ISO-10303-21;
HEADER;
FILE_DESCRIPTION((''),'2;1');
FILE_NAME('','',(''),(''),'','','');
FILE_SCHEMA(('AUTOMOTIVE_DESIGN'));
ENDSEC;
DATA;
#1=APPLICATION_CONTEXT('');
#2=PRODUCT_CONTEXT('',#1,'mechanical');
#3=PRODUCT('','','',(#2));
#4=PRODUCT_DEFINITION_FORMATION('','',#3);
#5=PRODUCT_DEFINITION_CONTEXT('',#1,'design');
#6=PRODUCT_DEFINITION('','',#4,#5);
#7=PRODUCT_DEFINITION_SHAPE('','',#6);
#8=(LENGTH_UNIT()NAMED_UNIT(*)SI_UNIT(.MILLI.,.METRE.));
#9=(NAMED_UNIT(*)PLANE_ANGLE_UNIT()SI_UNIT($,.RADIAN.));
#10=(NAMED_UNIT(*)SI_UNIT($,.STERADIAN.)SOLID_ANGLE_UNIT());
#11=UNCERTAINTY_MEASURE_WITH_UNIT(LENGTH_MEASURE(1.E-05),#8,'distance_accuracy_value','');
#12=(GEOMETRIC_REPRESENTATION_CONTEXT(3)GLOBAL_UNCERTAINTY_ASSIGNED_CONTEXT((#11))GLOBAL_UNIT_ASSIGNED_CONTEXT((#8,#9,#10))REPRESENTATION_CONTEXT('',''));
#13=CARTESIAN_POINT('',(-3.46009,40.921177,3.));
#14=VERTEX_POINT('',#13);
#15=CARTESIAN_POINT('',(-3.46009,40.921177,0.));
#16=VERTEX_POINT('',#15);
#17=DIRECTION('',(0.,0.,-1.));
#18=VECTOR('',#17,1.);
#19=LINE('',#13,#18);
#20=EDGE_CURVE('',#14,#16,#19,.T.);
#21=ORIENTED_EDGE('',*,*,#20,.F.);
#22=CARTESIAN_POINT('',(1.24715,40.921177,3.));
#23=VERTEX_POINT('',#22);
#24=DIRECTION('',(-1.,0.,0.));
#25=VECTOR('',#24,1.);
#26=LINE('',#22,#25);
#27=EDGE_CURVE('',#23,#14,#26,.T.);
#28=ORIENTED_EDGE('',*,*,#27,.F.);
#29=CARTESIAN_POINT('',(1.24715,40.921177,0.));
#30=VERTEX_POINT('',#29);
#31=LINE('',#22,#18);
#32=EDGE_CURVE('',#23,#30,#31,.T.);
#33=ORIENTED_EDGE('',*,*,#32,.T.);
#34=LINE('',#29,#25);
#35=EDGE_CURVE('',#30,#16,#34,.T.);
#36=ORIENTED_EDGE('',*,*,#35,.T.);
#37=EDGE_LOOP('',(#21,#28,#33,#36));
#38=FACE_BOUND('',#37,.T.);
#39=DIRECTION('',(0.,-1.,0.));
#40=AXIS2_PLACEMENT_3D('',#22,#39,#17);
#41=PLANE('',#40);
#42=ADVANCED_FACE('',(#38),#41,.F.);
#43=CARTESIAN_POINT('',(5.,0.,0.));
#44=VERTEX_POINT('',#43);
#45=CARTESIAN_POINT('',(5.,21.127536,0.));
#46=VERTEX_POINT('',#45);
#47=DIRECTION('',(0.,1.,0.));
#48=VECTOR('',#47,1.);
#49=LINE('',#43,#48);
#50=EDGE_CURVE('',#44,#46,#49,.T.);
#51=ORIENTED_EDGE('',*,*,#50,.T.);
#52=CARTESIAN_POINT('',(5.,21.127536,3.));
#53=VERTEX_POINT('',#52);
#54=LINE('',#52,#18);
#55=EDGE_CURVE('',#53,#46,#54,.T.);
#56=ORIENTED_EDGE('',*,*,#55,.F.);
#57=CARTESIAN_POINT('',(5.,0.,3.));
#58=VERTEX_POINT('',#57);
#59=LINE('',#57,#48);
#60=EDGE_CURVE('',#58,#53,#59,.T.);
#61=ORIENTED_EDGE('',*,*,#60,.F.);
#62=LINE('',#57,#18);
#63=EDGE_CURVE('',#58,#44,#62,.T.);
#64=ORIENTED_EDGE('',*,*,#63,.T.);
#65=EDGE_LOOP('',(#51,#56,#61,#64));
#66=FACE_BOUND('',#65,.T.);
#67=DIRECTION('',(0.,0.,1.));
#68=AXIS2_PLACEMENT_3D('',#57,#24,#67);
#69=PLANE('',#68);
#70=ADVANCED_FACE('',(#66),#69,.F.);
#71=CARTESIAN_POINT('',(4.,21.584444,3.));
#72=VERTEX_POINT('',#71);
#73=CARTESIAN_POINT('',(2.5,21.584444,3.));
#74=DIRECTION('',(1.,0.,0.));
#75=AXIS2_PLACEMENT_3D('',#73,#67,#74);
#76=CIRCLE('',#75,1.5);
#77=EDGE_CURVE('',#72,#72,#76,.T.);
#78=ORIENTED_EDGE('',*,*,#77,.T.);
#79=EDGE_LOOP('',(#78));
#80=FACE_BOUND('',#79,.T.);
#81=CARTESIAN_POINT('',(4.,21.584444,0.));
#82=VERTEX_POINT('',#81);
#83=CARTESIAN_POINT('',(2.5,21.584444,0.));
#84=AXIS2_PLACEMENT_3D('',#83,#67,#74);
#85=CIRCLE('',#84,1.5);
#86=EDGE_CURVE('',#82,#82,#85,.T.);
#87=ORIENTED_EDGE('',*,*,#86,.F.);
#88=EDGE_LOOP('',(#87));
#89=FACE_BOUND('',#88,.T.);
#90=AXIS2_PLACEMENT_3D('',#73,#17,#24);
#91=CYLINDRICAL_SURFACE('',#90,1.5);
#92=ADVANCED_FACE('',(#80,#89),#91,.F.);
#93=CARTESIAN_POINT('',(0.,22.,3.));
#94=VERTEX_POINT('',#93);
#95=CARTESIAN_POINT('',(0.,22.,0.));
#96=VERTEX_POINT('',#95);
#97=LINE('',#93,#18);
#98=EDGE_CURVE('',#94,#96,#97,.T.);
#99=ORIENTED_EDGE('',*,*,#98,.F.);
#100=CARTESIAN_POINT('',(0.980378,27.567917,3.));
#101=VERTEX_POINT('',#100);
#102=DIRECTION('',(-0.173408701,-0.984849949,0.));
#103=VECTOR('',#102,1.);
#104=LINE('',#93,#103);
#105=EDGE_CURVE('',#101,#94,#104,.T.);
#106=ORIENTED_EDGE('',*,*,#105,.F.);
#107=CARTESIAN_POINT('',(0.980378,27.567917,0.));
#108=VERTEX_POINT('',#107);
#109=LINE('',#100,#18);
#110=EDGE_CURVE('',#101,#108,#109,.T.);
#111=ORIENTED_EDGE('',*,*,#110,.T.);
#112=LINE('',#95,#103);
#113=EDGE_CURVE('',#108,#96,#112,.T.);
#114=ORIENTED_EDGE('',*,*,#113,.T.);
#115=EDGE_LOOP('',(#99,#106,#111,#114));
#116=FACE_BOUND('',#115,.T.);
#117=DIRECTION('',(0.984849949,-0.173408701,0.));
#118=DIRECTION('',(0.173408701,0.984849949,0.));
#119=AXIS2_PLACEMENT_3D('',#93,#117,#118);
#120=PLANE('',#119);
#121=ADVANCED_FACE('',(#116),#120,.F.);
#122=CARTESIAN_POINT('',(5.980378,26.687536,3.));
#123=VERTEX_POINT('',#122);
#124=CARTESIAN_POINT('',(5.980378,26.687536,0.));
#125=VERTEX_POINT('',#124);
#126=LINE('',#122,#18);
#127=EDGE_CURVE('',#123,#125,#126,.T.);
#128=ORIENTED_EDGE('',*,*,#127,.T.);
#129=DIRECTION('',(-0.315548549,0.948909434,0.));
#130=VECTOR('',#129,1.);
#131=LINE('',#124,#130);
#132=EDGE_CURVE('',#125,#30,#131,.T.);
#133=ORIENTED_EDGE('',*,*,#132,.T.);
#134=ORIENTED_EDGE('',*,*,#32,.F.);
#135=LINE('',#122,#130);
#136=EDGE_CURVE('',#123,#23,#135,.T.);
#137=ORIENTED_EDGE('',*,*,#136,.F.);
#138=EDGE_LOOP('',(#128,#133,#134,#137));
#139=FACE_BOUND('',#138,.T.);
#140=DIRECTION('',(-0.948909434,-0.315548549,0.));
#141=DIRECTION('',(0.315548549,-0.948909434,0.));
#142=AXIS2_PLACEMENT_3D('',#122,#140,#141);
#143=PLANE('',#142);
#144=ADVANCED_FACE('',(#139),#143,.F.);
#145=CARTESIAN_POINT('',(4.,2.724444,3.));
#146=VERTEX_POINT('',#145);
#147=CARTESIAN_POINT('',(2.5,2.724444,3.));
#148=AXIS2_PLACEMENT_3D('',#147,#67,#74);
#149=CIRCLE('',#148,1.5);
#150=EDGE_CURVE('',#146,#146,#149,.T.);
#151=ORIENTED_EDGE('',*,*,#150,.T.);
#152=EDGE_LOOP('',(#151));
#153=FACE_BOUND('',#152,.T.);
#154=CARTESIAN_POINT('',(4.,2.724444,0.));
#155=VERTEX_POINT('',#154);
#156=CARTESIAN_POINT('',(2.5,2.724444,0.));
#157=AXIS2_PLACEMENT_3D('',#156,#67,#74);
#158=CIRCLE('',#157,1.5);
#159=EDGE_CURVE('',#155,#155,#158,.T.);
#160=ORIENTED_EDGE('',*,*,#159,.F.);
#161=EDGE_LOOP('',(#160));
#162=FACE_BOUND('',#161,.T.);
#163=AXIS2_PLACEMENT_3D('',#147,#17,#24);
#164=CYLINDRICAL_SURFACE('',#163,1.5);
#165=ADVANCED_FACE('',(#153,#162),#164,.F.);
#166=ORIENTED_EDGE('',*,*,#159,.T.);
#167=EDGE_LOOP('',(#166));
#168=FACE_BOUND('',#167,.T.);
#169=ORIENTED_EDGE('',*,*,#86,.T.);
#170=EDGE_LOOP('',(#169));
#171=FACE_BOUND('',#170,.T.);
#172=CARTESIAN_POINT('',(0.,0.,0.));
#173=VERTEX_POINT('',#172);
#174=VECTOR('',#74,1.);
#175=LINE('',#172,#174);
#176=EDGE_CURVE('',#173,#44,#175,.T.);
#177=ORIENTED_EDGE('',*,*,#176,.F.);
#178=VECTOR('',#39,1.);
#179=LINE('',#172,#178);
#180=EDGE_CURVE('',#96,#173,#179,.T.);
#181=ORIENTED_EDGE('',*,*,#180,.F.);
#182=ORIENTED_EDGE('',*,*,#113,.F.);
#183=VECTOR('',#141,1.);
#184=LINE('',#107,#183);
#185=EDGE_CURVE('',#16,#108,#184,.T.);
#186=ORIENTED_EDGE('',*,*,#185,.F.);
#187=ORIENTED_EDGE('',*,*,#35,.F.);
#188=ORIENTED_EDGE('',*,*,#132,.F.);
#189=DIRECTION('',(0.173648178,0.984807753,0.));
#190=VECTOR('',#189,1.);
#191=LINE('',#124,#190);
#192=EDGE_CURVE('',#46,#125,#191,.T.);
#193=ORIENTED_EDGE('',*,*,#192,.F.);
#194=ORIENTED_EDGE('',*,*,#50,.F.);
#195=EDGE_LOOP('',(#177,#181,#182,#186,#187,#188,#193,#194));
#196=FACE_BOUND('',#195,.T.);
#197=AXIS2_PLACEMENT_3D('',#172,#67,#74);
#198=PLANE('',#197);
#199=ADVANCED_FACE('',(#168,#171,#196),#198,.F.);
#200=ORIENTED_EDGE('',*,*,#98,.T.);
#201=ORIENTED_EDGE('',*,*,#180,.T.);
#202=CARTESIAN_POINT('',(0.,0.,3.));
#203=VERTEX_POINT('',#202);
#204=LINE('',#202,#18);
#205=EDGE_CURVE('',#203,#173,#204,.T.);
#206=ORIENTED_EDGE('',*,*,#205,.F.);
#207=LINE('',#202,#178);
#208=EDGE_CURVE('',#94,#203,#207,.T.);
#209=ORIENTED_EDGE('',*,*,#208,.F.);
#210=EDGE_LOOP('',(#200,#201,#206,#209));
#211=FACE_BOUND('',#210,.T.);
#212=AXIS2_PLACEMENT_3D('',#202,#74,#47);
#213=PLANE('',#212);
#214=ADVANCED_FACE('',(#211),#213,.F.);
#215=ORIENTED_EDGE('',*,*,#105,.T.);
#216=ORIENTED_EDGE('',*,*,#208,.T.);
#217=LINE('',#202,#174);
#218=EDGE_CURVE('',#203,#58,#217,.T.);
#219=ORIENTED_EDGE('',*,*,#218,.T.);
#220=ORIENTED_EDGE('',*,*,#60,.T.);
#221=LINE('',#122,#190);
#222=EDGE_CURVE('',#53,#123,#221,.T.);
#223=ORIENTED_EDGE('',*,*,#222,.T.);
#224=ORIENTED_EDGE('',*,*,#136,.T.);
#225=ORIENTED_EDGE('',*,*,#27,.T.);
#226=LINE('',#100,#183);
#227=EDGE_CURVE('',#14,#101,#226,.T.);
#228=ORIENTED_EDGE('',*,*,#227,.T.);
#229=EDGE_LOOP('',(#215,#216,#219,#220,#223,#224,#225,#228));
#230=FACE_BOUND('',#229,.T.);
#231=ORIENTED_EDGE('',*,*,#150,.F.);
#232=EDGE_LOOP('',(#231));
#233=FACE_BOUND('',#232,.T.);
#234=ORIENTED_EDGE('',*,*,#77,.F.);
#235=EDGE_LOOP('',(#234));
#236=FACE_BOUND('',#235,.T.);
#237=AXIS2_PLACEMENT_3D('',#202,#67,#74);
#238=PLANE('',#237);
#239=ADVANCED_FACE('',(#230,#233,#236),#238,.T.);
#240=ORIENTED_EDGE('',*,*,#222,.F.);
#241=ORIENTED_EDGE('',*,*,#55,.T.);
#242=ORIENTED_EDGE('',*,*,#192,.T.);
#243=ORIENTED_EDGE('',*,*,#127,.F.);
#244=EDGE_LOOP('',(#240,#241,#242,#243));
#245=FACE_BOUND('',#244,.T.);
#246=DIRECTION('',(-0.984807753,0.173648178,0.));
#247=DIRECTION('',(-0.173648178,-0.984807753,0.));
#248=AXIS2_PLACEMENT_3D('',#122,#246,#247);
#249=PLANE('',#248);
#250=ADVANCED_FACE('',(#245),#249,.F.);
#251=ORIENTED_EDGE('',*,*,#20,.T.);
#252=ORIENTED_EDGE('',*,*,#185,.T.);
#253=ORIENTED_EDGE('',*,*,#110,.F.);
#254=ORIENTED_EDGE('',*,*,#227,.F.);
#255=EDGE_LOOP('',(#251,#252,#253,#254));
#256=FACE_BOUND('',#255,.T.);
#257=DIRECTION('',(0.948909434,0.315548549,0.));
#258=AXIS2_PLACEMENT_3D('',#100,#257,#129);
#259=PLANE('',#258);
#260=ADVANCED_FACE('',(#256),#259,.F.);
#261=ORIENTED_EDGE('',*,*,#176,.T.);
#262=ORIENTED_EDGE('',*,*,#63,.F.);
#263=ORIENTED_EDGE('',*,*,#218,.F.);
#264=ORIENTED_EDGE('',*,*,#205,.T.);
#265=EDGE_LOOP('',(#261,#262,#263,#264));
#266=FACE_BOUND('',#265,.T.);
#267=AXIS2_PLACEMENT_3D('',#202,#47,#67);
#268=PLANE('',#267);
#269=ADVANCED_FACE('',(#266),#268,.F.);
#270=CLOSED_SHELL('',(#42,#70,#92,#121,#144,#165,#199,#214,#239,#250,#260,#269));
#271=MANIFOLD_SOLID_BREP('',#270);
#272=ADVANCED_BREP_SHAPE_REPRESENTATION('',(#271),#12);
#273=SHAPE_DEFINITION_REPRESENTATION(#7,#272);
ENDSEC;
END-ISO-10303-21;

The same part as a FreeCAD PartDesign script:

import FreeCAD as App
import Part
import Sketcher

V = App.Vector
Q = App.Units.Quantity


def add_polygon(sketch, points):
    """Adds a closed chain of lines whose ends are joined by coincident constraints."""
    first, n = sketch.GeometryCount, len(points)
    for a, b in zip(points, points[1:] + points[:1]):
        sketch.addGeometry(Part.LineSegment(App.Vector(*a, 0), App.Vector(*b, 0)), False)
    for i in range(n):
        sketch.addConstraint(Sketcher.Constraint("Coincident", first + i, 2, first + (i + 1) % n, 1))

doc = App.newDocument("Part")
body = doc.addObject("PartDesign::Body", "Body")

# Sketch on XY plane
sketch1 = doc.addObject("Sketcher::SketchObject", "Sketch")
body.addObject(sketch1)
sketch1.AttachmentSupport = (doc.XY_Plane, [""])
sketch1.MapMode = "FlatFace"
add_polygon(sketch1, [(1, 27.6), (0, 22), (0, 0), (5, 0), (5, 21.1), (6, 26.7), (1.2, 40.9), (-3.5, 40.9)])  # lines 0-7
sketch1.addGeometry(Part.Circle(V(2.5, 2.7, 0), V(0, 0, 1), 1.5), False)  # 8
sketch1.addGeometry(Part.Circle(V(2.5, 21.6, 0), V(0, 0, 1), 1.5), False)  # 9
sketch1.addConstraint([
    Sketcher.Constraint("Vertical", 1),
    Sketcher.Constraint("Horizontal", 2),
    Sketcher.Constraint("Vertical", 3),
    Sketcher.Constraint("Horizontal", 6),
    Sketcher.Constraint("Coincident", 1, 2, -1, 1),
    Sketcher.Constraint("Equal", 8, 9),
    Sketcher.Constraint("Parallel", 5, 7),
    Sketcher.Constraint("Vertical", 8, 3, 9, 3),
    Sketcher.Constraint("Diameter", 8, 3.0),
    Sketcher.Constraint("DistanceX", 2, 1, 2, 2, 5.0),
    Sketcher.Constraint("DistanceY", 1, 2, 1, 1, 22.0),
    Sketcher.Constraint("Angle", 4, Q("80 deg")),
    Sketcher.Constraint("Distance", 5, 15.0),
    Sketcher.Constraint("DistanceX", 7, 2, 4, 2, 5.0),
    Sketcher.Constraint("DistanceX", -1, 1, 8, 3, 2.5),
    Sketcher.Constraint("DistanceY", 8, 3, 9, 3, 18.86),
    Sketcher.Constraint("DistanceY", 3, 2, 4, 2, 5.56),
    Sketcher.Constraint("DistanceX", 6, 2, 6, 1, 4.70724),
    Sketcher.Constraint("Distance", 0, 5.653569),
    Sketcher.Constraint("DistanceY", 3, 1, 3, 2, 21.127536),
    Sketcher.Constraint("DistanceY", 3, 2, 9, 3, 0.456909),
])
pad1 = doc.addObject("PartDesign::Pad", "Pad")
body.addObject(pad1)
pad1.Profile = sketch1
pad1.Length = 3

doc.recompute()
